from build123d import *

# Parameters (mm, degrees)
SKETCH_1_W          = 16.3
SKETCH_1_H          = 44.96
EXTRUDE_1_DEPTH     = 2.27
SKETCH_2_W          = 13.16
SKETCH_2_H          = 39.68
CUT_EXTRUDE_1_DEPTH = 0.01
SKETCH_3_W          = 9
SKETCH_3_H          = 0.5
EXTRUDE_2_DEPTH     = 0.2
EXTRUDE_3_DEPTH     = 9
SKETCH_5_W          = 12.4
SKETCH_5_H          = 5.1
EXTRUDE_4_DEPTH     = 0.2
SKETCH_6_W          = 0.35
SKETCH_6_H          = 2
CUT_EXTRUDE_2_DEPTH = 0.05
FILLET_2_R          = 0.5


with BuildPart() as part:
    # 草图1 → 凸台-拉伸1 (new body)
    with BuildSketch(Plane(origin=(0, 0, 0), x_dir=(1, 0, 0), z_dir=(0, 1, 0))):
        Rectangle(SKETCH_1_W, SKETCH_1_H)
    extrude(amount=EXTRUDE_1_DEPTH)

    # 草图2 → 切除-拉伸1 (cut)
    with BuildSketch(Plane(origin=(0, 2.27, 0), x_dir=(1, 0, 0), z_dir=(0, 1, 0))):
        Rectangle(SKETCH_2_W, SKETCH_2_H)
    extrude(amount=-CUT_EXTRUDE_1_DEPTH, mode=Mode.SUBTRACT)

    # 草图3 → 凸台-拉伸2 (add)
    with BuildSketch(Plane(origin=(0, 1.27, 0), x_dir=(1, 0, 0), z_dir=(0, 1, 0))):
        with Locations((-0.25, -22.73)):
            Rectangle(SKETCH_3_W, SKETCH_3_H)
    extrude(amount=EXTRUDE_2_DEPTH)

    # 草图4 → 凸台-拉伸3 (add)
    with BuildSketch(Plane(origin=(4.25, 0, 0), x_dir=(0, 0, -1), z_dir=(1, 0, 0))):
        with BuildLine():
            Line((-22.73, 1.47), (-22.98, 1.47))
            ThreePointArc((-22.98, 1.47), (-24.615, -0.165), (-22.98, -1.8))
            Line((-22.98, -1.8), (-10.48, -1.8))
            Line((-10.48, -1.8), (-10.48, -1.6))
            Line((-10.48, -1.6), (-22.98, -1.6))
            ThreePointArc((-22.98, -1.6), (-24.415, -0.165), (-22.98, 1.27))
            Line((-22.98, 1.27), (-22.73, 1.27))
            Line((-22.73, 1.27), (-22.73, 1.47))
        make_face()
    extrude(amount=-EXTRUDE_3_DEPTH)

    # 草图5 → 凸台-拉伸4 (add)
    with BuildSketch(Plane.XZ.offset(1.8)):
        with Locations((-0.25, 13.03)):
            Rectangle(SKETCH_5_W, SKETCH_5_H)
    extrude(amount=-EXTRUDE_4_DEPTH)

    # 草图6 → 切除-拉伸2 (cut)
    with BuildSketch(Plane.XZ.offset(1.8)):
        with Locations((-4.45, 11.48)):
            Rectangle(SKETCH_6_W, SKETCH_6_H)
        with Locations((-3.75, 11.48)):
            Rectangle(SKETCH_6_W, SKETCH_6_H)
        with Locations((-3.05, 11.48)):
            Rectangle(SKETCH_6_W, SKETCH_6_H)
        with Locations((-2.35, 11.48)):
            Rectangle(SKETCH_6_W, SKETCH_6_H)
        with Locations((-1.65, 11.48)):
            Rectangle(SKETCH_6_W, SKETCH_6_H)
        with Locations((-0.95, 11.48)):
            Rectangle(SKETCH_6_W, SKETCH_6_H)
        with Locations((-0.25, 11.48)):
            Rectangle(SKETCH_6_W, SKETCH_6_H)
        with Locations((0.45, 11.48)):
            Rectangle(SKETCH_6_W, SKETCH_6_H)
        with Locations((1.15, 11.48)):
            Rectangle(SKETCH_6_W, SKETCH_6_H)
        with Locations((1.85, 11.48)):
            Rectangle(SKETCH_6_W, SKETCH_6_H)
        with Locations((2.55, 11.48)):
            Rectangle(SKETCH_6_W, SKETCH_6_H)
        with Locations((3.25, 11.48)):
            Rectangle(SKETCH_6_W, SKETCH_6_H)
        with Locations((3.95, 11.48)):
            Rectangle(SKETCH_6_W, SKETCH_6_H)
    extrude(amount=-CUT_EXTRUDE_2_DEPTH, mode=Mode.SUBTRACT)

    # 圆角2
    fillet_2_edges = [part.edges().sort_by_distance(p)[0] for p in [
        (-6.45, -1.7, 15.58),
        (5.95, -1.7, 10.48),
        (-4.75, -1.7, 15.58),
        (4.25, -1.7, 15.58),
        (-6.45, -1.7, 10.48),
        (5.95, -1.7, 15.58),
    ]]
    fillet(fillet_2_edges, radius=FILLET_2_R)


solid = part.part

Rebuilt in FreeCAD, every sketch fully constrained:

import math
import FreeCAD as App
import Part
import Sketcher

V = App.Vector


def edges_at(feature, points):
    """Names of the edges that pass closest to the given points."""
    edges = feature.Shape.Edges
    near = lambda p: min(range(len(edges)), key=lambda i: edges[i].distToShape(Part.Vertex(*p))[0])
    return sorted({f"Edge{near(p) + 1}" for p in points})


def add_polygon(sketch, points):
    """Adds a closed chain of lines whose ends are joined by coincident constraints."""
    first, n = sketch.GeometryCount, len(points)
    for a, b in zip(points, points[1:] + points[:1]):
        sketch.addGeometry(Part.LineSegment(App.Vector(*a, 0), App.Vector(*b, 0)), False)
    for i in range(n):
        sketch.addConstraint(Sketcher.Constraint("Coincident", first + i, 2, first + (i + 1) % n, 1))

doc = App.newDocument("Part")
body = doc.addObject("PartDesign::Body", "Body")

sketch1 = body.newObject("Sketcher::SketchObject", "Sketch")
sketch1.AttachmentSupport = (doc.getObject("XZ_Plane"), [""])
sketch1.MapMode = "FlatFace"
add_polygon(sketch1, [(-8, -22), (-8, 22), (8, 22), (8, -22)])
sketch1.addConstraint([
    Sketcher.Constraint("Vertical", 0),
    Sketcher.Constraint("Horizontal", 1),
    Sketcher.Constraint("Vertical", 2),
    Sketcher.Constraint("Horizontal", 3),
    Sketcher.Constraint("Symmetric", 0, 2, 2, 2, -1, 1),
    Sketcher.Constraint("DistanceX", 1, 1, 1, 2, 16.3),
    Sketcher.Constraint("DistanceY", 0, 1, 0, 2, 44.96),
])
pad1 = body.newObject("PartDesign::Pad", "Pad")
pad1.Profile = sketch1
pad1.Length = 2.27
pad1.Reversed = True

sketch2 = body.newObject("Sketcher::SketchObject", "Sketch001")
sketch2.AttachmentSupport = (doc.getObject("XZ_Plane"), [""])
sketch2.MapMode = "FlatFace"
sketch2.AttachmentOffset = App.Placement(V(0, 0, -2.27), App.Rotation())
add_polygon(sketch2, [(-7, -20), (-7, 20), (7, 20), (7, -20)])
sketch2.addConstraint([
    Sketcher.Constraint("Vertical", 0),
    Sketcher.Constraint("Horizontal", 1),
    Sketcher.Constraint("Vertical", 2),
    Sketcher.Constraint("Horizontal", 3),
    Sketcher.Constraint("Symmetric", 0, 2, 2, 2, -1, 1),
    Sketcher.Constraint("DistanceX", 1, 1, 1, 2, 13.16),
    Sketcher.Constraint("DistanceY", 0, 1, 0, 2, 39.68),
])
pocket1 = body.newObject("PartDesign::Pocket", "Pocket")
pocket1.Profile = sketch2
pocket1.Length = 0.01
pocket1.Reversed = True

sketch3 = body.newObject("Sketcher::SketchObject", "Sketch002")
sketch3.AttachmentSupport = (doc.getObject("XZ_Plane"), [""])
sketch3.MapMode = "FlatFace"
sketch3.AttachmentOffset = App.Placement(V(0, 0, -1.27), App.Rotation())
add_polygon(sketch3, [(-4.8, 22.5), (-4.8, 23), (4.2, 23), (4.2, 22.5)])
sketch3.addConstraint([
    Sketcher.Constraint("Vertical", 0),
    Sketcher.Constraint("Horizontal", 1),
    Sketcher.Constraint("Vertical", 2),
    Sketcher.Constraint("Horizontal", 3),
    Sketcher.Constraint("DistanceX", 1, 1, 1, 2, 9.0),
    Sketcher.Constraint("DistanceY", 0, 1, 0, 2, 0.5),
    Sketcher.Constraint("DistanceX", 0, 2, -1, 1, 4.75),
    Sketcher.Constraint("DistanceY", -1, 1, 0, 2, 22.98),
])
pad2 = body.newObject("PartDesign::Pad", "Pad001")
pad2.Profile = sketch3
pad2.Length = 0.2
pad2.Reversed = True

sketch4 = body.newObject("Sketcher::SketchObject", "Sketch003")
sketch4.AttachmentSupport = (doc.getObject("YZ_Plane"), [""])
sketch4.MapMode = "FlatFace"
sketch4.AttachmentOffset = App.Placement(V(0, 0, 4.25), App.Rotation())
sketch4.addGeometry([
    Part.LineSegment(V(1.47, 22.73, 0), V(1.47, 22.98, 0)),
    Part.ArcOfCircle(Part.Circle(V(-0.17, 22.98, 0), V(0, 0, 1), 1.64), math.radians(0), math.radians(180)),
    Part.LineSegment(V(-1.8, 22.98, 0), V(-1.8, 10.48, 0)),
    Part.LineSegment(V(-1.8, 10.48, 0), V(-1.6, 10.48, 0)),
    Part.LineSegment(V(-1.6, 10.48, 0), V(-1.6, 22.98, 0)),
    Part.ArcOfCircle(Part.Circle(V(-0.17, 22.98, 0), V(0, 0, 1), 1.44), math.radians(0), math.radians(180)),
    Part.LineSegment(V(1.27, 22.98, 0), V(1.27, 22.73, 0)),
    Part.LineSegment(V(1.27, 22.73, 0), V(1.47, 22.73, 0)),
], False)
sketch4.addConstraint([
    Sketcher.Constraint("Tangent", 0, 2, 1, 1),
    Sketcher.Constraint("Tangent", 1, 2, 2, 1),
    Sketcher.Constraint("Coincident", 2, 2, 3, 1),
    Sketcher.Constraint("Coincident", 3, 2, 4, 1),
    Sketcher.Constraint("Tangent", 4, 2, 5, 2),
    Sketcher.Constraint("Tangent", 5, 1, 6, 1),
    Sketcher.Constraint("Coincident", 6, 2, 7, 1),
    Sketcher.Constraint("Coincident", 7, 2, 0, 1),
    Sketcher.Constraint("Vertical", 0),
    Sketcher.Constraint("Vertical", 2),
    Sketcher.Constraint("Horizontal", 3),
    Sketcher.Constraint("Vertical", 4),
    Sketcher.Constraint("Vertical", 6),
    Sketcher.Constraint("Horizontal", 7),
    Sketcher.Constraint("Coincident", 5, 3, 1, 3),
    Sketcher.Constraint("DistanceX", 3, 1, 3, 2, 0.2),
    Sketcher.Constraint("DistanceY", 2, 2, 2, 1, 12.5),
    Sketcher.Constraint("Radius", 1, 1.635),
    Sketcher.Constraint("DistanceY", 0, 1, 0, 2, 0.25),
    Sketcher.Constraint("DistanceX", 1, 2, -1, 1, 1.8),
    Sketcher.Constraint("DistanceY", -1, 1, 1, 3, 22.98),
])
pad3 = body.newObject("PartDesign::Pad", "Pad002")
pad3.Profile = sketch4
pad3.Length = 9
pad3.Reversed = True

sketch5 = body.newObject("Sketcher::SketchObject", "Sketch004")
sketch5.AttachmentSupport = (doc.getObject("XZ_Plane"), [""])
sketch5.MapMode = "FlatFace"
sketch5.AttachmentOffset = App.Placement(V(0, 0, 1.8), App.Rotation())
add_polygon(sketch5, [(-6, 16), (-6, 10), (6, 10), (6, 16)])
sketch5.addConstraint([
    Sketcher.Constraint("Vertical", 0),
    Sketcher.Constraint("Horizontal", 1),
    Sketcher.Constraint("Vertical", 2),
    Sketcher.Constraint("Horizontal", 3),
    Sketcher.Constraint("DistanceX", 1, 1, 1, 2, 12.4),
    Sketcher.Constraint("DistanceY", 0, 2, 0, 1, 5.1),
    Sketcher.Constraint("DistanceX", 0, 2, -1, 1, 6.45),
    Sketcher.Constraint("DistanceY", -1, 1, 0, 2, 10.48),
])
pad4 = body.newObject("PartDesign::Pad", "Pad003")
pad4.Profile = sketch5
pad4.Length = 0.2
pad4.Reversed = True

sketch6 = body.newObject("Sketcher::SketchObject", "Sketch005")
sketch6.AttachmentSupport = (doc.getObject("XZ_Plane"), [""])
sketch6.MapMode = "FlatFace"
sketch6.AttachmentOffset = App.Placement(V(0, 0, 1.8), App.Rotation())
add_polygon(sketch6, [(-4.62, 12.48), (-4.62, 10.48), (-4.28, 10.48), (-4.28, 12.48)])
add_polygon(sketch6, [(-3.92, 12.48), (-3.92, 10.48), (-3.58, 10.48), (-3.58, 12.48)])
add_polygon(sketch6, [(-3.23, 12.48), (-3.23, 10.48), (-2.88, 10.48), (-2.88, 12.48)])
add_polygon(sketch6, [(-2.52, 12.48), (-2.52, 10.48), (-2.17, 10.48), (-2.17, 12.48)])
add_polygon(sketch6, [(-1.82, 12.48), (-1.82, 10.48), (-1.48, 10.48), (-1.48, 12.48)])
add_polygon(sketch6, [(-1.12, 12.48), (-1.12, 10.48), (-0.78, 10.48), (-0.78, 12.48)])
add_polygon(sketch6, [(-0.42, 12.48), (-0.42, 10.48), (-0.07, 10.48), (-0.07, 12.48)])
add_polygon(sketch6, [(0.28, 12.48), (0.28, 10.48), (0.62, 10.48), (0.62, 12.48)])
add_polygon(sketch6, [(0.97, 12.48), (0.97, 10.48), (1.32, 10.48), (1.32, 12.48)])
add_polygon(sketch6, [(1.68, 12.48), (1.68, 10.48), (2.02, 10.48), (2.02, 12.48)])
add_polygon(sketch6, [(2.38, 12.48), (2.38, 10.48), (2.73, 10.48), (2.73, 12.48)])
add_polygon(sketch6, [(3.08, 12.48), (3.08, 10.48), (3.42, 10.48), (3.42, 12.48)])
add_polygon(sketch6, [(3.77, 12.48), (3.77, 10.48), (4.12, 10.48), (4.12, 12.48)])
sketch6.addConstraint([
    Sketcher.Constraint("Vertical", 0),
    Sketcher.Constraint("Horizontal", 1),
    Sketcher.Constraint("Vertical", 2),
    Sketcher.Constraint("Horizontal", 3),
    Sketcher.Constraint("Vertical", 4),
    Sketcher.Constraint("Horizontal", 5),
    Sketcher.Constraint("Vertical", 6),
    Sketcher.Constraint("Horizontal", 7),
    Sketcher.Constraint("Vertical", 8),
    Sketcher.Constraint("Horizontal", 9),
    Sketcher.Constraint("Vertical", 10),
    Sketcher.Constraint("Horizontal", 11),
    Sketcher.Constraint("Vertical", 12),
    Sketcher.Constraint("Horizontal", 13),
    Sketcher.Constraint("Vertical", 14),
    Sketcher.Constraint("Horizontal", 15),
    Sketcher.Constraint("Vertical", 16),
    Sketcher.Constraint("Horizontal", 17),
    Sketcher.Constraint("Vertical", 18),
    Sketcher.Constraint("Horizontal", 19),
    Sketcher.Constraint("Vertical", 20),
    Sketcher.Constraint("Horizontal", 21),
    Sketcher.Constraint("Vertical", 22),
    Sketcher.Constraint("Horizontal", 23),
    Sketcher.Constraint("Vertical", 24),
    Sketcher.Constraint("Horizontal", 25),
    Sketcher.Constraint("Vertical", 26),
    Sketcher.Constraint("Horizontal", 27),
    Sketcher.Constraint("Vertical", 28),
    Sketcher.Constraint("Horizontal", 29),
    Sketcher.Constraint("Vertical", 30),
    Sketcher.Constraint("Horizontal", 31),
    Sketcher.Constraint("Vertical", 32),
    Sketcher.Constraint("Horizontal", 33),
    Sketcher.Constraint("Vertical", 34),
    Sketcher.Constraint("Horizontal", 35),
    Sketcher.Constraint("Vertical", 36),
    Sketcher.Constraint("Horizontal", 37),
    Sketcher.Constraint("Vertical", 38),
    Sketcher.Constraint("Horizontal", 39),
    Sketcher.Constraint("Vertical", 40),
    Sketcher.Constraint("Horizontal", 41),
    Sketcher.Constraint("Vertical", 42),
    Sketcher.Constraint("Horizontal", 43),
    Sketcher.Constraint("Vertical", 44),
    Sketcher.Constraint("Horizontal", 45),
    Sketcher.Constraint("Vertical", 46),
    Sketcher.Constraint("Horizontal", 47),
    Sketcher.Constraint("Vertical", 48),
    Sketcher.Constraint("Horizontal", 49),
    Sketcher.Constraint("Vertical", 50),
    Sketcher.Constraint("Horizontal", 51),
    Sketcher.Constraint("Horizontal", 1, 2, 4, 2),
    Sketcher.Constraint("Horizontal", 3, 2, 6, 2),
    Sketcher.Constraint("Horizontal", 5, 2, 8, 2),
    Sketcher.Constraint("Horizontal", 7, 2, 10, 2),
    Sketcher.Constraint("Horizontal", 9, 2, 12, 2),
    Sketcher.Constraint("Horizontal", 11, 2, 14, 2),
    Sketcher.Constraint("Horizontal", 13, 2, 16, 2),
    Sketcher.Constraint("Horizontal", 15, 2, 18, 2),
    Sketcher.Constraint("Horizontal", 17, 2, 20, 2),
    Sketcher.Constraint("Horizontal", 19, 2, 22, 2),
    Sketcher.Constraint("Horizontal", 21, 2, 24, 2),
    Sketcher.Constraint("Horizontal", 23, 2, 26, 2),
    Sketcher.Constraint("Horizontal", 25, 2, 28, 2),
    Sketcher.Constraint("Horizontal", 27, 2, 30, 2),
    Sketcher.Constraint("Horizontal", 29, 2, 32, 2),
    Sketcher.Constraint("Horizontal", 31, 2, 34, 2),
    Sketcher.Constraint("Horizontal", 33, 2, 36, 2),
    Sketcher.Constraint("Horizontal", 35, 2, 38, 2),
    Sketcher.Constraint("Horizontal", 37, 2, 40, 2),
    Sketcher.Constraint("Horizontal", 39, 2, 42, 2),
    Sketcher.Constraint("Horizontal", 41, 2, 44, 2),
    Sketcher.Constraint("Horizontal", 43, 2, 46, 2),
    Sketcher.Constraint("Horizontal", 45, 2, 48, 2),
    Sketcher.Constraint("Horizontal", 47, 2, 50, 2),
    Sketcher.Constraint("Equal", 3, 5),
    Sketcher.Constraint("Equal", 7, 9),
    Sketcher.Constraint("Equal", 11, 13),
    Sketcher.Constraint("Equal", 15, 17),
    Sketcher.Constraint("Equal", 19, 21),
    Sketcher.Constraint("Equal", 23, 25),
    Sketcher.Constraint("Equal", 27, 29),
    Sketcher.Constraint("Equal", 31, 33),
    Sketcher.Constraint("Equal", 35, 37),
    Sketcher.Constraint("Equal", 39, 41),
    Sketcher.Constraint("Equal", 43, 45),
    Sketcher.Constraint("Equal", 47, 49),
    Sketcher.Constraint("DistanceY", 0, 2, 0, 1, 2.0),
    Sketcher.Constraint("DistanceX", 1, 1, 1, 2, 0.35),
    Sketcher.Constraint("DistanceX", 0, 2, 4, 2, 0.7),
    Sketcher.Constraint("DistanceX", 4, 2, 8, 2, 0.7),
    Sketcher.Constraint("DistanceX", 8, 2, 12, 2, 0.7),
    Sketcher.Constraint("DistanceX", 12, 2, 16, 2, 0.7),
    Sketcher.Constraint("DistanceX", 16, 2, 20, 2, 0.7),
    Sketcher.Constraint("DistanceX", 20, 2, 24, 2, 0.7),
    Sketcher.Constraint("DistanceX", 24, 2, 28, 2, 0.7),
    Sketcher.Constraint("DistanceX", 28, 2, 32, 2, 0.7),
    Sketcher.Constraint("DistanceX", 32, 2, 36, 2, 0.7),
    Sketcher.Constraint("DistanceX", 36, 2, 40, 2, 0.7),
    Sketcher.Constraint("DistanceX", 40, 2, 44, 2, 0.7),
    Sketcher.Constraint("DistanceX", 44, 2, 48, 2, 0.7),
    Sketcher.Constraint("DistanceY", -1, 1, 0, 2, 10.48),
    Sketcher.Constraint("DistanceX", 0, 2, -1, 1, 4.625),
])
pocket2 = body.newObject("PartDesign::Pocket", "Pocket001")
pocket2.Profile = sketch6
pocket2.Length = 0.05
doc.recompute()

fillet = body.newObject("PartDesign::Fillet", "Fillet")
fillet.Base = (pocket2, edges_at(pocket2, [
    (-6.45, -1.7, 15.58),
    (5.95, -1.7, 10.48),
    (-4.75, -1.7, 15.58),
    (4.25, -1.7, 15.58),
    (-6.45, -1.7, 10.48),
    (5.95, -1.7, 15.58),
]))
fillet.Radius = 0.5

doc.recompute()
